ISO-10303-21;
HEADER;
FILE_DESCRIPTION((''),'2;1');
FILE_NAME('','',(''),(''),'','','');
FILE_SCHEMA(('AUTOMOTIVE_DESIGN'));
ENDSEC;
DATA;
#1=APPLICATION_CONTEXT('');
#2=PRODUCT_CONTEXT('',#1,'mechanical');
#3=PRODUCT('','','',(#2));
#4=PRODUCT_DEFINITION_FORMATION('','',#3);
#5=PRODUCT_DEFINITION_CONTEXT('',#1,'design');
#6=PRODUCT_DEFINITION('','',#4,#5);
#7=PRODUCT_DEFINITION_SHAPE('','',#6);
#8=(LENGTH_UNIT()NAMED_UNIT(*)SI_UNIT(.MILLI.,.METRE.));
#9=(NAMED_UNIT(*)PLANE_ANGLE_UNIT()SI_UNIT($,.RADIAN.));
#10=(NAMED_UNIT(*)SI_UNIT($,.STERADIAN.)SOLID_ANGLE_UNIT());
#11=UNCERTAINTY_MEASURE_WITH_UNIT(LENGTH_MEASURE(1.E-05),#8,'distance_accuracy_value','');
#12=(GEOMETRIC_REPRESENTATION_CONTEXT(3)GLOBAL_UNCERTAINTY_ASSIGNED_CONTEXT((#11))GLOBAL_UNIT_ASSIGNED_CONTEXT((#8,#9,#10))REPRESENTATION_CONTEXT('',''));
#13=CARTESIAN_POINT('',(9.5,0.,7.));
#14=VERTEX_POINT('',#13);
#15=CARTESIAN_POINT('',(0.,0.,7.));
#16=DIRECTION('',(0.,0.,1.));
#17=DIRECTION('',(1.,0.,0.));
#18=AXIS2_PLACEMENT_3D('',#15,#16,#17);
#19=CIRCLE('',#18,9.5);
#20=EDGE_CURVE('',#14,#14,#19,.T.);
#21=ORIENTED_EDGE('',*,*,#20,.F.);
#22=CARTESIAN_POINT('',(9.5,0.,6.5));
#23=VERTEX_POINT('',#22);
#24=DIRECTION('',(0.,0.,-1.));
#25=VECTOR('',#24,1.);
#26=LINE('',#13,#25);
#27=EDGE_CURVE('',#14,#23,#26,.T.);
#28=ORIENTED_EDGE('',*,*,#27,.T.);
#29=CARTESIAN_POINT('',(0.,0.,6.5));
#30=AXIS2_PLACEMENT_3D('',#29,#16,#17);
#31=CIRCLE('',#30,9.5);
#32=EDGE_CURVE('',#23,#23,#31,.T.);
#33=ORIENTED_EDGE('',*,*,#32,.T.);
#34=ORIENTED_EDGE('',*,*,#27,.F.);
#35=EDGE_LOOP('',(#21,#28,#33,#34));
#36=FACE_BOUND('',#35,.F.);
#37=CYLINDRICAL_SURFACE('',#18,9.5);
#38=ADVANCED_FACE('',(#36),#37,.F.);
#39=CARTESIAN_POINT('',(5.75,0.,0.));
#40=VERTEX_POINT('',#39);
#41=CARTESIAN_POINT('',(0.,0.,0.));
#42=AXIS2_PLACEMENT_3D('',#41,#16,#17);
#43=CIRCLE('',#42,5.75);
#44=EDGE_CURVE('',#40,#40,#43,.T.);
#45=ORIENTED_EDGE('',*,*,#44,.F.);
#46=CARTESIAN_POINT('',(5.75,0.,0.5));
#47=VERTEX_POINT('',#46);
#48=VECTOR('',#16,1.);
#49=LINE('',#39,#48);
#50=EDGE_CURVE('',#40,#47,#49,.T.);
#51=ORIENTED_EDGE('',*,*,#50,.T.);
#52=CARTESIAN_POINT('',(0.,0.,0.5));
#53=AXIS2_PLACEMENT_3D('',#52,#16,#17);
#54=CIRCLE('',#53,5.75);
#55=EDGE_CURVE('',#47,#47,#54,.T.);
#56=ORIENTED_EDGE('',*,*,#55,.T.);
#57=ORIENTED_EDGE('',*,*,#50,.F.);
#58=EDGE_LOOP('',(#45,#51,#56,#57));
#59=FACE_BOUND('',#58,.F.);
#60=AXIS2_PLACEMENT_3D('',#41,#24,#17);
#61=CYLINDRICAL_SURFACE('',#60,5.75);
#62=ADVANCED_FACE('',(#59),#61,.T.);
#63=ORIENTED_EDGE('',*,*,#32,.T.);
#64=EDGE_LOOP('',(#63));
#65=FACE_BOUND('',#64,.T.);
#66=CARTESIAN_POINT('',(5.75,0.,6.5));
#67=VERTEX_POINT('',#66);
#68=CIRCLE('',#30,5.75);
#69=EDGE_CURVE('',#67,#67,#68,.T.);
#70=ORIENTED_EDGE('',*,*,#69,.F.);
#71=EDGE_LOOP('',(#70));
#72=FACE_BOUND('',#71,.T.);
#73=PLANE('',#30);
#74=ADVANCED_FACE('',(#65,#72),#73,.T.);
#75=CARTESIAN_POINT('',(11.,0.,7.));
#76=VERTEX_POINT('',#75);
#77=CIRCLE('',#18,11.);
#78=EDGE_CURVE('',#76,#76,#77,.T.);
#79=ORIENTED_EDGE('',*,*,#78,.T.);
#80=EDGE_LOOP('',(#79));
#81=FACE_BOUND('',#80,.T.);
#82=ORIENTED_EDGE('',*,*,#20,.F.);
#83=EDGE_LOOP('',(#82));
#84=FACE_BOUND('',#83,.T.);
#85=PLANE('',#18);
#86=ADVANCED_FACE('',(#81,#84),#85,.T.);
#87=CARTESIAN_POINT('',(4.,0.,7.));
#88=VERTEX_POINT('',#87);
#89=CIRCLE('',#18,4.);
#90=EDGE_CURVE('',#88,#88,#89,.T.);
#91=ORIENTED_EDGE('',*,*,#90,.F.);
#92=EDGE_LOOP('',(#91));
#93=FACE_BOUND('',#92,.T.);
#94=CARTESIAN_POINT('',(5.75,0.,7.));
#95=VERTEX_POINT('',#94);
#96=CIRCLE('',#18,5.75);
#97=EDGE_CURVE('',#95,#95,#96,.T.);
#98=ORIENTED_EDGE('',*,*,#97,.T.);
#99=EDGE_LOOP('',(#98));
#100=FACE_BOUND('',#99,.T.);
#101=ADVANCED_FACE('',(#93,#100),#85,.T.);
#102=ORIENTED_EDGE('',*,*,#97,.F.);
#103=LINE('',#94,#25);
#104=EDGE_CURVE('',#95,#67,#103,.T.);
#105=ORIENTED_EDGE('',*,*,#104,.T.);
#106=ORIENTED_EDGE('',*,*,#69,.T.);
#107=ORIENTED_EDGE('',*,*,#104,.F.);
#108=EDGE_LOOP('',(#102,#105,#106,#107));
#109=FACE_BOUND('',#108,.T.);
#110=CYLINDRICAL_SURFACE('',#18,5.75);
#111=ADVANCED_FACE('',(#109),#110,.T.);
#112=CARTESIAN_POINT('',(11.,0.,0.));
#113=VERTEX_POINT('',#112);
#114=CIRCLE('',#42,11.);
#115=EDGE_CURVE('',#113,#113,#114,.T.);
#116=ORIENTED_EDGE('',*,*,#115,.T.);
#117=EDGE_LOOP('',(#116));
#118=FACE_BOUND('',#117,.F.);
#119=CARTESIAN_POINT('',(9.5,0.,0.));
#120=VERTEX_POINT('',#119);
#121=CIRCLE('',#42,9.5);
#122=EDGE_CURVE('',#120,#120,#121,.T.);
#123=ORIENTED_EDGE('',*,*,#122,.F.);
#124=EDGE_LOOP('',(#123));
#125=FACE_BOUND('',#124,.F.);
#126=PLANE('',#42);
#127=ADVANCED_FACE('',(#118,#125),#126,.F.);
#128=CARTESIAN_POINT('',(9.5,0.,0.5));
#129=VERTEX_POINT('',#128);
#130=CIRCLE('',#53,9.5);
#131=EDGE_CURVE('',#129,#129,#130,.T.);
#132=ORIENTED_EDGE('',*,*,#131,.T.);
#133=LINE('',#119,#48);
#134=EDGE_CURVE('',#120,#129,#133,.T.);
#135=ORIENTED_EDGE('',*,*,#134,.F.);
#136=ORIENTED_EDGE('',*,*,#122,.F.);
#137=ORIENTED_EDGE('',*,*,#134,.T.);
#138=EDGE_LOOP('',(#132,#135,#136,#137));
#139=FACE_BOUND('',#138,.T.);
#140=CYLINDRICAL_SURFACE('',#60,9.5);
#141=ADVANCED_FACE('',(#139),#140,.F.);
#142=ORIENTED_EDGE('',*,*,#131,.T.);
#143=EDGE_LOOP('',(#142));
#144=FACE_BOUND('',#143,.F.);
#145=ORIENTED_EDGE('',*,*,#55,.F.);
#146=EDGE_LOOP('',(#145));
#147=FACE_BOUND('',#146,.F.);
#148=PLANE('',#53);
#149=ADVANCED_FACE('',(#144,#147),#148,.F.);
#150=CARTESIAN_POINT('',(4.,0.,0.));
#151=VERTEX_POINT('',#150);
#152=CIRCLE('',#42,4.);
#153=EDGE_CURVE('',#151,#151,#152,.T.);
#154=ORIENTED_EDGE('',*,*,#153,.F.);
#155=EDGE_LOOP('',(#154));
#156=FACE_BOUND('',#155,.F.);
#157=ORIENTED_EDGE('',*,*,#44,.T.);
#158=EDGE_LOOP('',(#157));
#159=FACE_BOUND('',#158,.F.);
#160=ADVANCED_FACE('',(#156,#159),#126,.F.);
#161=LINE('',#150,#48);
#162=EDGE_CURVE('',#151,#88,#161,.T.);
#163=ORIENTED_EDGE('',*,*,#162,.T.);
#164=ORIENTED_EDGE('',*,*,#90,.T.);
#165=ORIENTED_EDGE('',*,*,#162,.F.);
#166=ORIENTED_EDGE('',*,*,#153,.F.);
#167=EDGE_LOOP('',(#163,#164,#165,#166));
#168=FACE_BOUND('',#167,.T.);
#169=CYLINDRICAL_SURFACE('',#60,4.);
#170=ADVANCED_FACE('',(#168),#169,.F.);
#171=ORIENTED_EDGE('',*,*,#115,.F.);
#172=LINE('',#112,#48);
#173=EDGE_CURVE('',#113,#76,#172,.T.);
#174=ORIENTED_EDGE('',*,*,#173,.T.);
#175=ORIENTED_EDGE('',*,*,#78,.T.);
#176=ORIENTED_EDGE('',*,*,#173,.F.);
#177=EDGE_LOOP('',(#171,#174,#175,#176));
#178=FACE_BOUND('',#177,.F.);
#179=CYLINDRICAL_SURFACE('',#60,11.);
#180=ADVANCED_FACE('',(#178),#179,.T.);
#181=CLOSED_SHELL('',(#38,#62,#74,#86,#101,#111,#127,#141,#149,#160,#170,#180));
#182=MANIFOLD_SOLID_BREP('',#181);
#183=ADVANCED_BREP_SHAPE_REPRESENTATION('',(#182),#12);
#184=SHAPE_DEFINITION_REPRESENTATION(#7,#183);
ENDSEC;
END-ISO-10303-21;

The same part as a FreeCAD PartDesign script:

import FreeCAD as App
import Part
import Sketcher

V = App.Vector
Q = App.Units.Quantity

doc = App.newDocument("Part")
body = doc.addObject("PartDesign::Body", "Body")

# Sketch on XY plane
sketch1 = body.newObject("Sketcher::SketchObject", "Sketch")
sketch1.AttachmentSupport = (doc.getObject("XY_Plane"), [""])
sketch1.MapMode = "FlatFace"
sketch1.addGeometry(Part.Circle(V(0, 0, 0), V(0, 0, 1), 11), False)
sketch1.addGeometry(Part.Circle(V(0, 0, 0), V(0, 0, 1), 4), False)
sketch1.addConstraint(Sketcher.Constraint("Coincident", 0, 3, -1, 1))
sketch1.addConstraint(Sketcher.Constraint("Coincident", 1, 3, -1, 1))
sketch1.addConstraint(Sketcher.Constraint("Diameter", 0, Q("22 mm")))
sketch1.addConstraint(Sketcher.Constraint("Diameter", 1, Q("8 mm")))
pad1 = body.newObject("PartDesign::Pad", "Pad")
pad1.Profile = sketch1
pad1.Length = 7

# Sketch on XY plane
sketch2 = body.newObject("Sketcher::SketchObject", "Sketch001")
sketch2.AttachmentSupport = (doc.getObject("XY_Plane"), [""])
sketch2.MapMode = "FlatFace"
sketch2.addGeometry(Part.Circle(V(0, 0, 0), V(0, 0, 1), 10), False)
sketch2.addGeometry(Part.Circle(V(0, 0, 0), V(0, 0, 1), 6), False)
sketch2.addConstraint(Sketcher.Constraint("Coincident", 0, 3, -1, 1))
sketch2.addConstraint(Sketcher.Constraint("Coincident", 1, 3, -1, 1))
sketch2.addConstraint(Sketcher.Constraint("Diameter", 0, Q("19 mm")))
sketch2.addConstraint(Sketcher.Constraint("Diameter", 1, Q("11.5 mm")))
pocket1 = body.newObject("PartDesign::Pocket", "Pocket")
pocket1.Profile = sketch2
pocket1.Length = 0.5
pocket1.Reversed = True

# Sketch on XY plane
sketch3 = body.newObject("Sketcher::SketchObject", "Sketch002")
sketch3.AttachmentSupport = (doc.getObject("XY_Plane"), [""])
sketch3.MapMode = "FlatFace"
sketch3.AttachmentOffset = App.Placement(V(0, 0, 7), App.Rotation())
sketch3.addGeometry(Part.Circle(V(0, 0, 0), V(0, 0, 1), 10), False)
sketch3.addGeometry(Part.Circle(V(0, 0, 0), V(0, 0, 1), 6), False)
sketch3.addConstraint(Sketcher.Constraint("Coincident", 0, 3, -1, 1))
sketch3.addConstraint(Sketcher.Constraint("Coincident", 1, 3, -1, 1))
sketch3.addConstraint(Sketcher.Constraint("Diameter", 0, Q("19 mm")))
sketch3.addConstraint(Sketcher.Constraint("Diameter", 1, Q("11.5 mm")))
pocket2 = body.newObject("PartDesign::Pocket", "Pocket001")
pocket2.Profile = sketch3
pocket2.Length = 0.5

doc.recompute()
